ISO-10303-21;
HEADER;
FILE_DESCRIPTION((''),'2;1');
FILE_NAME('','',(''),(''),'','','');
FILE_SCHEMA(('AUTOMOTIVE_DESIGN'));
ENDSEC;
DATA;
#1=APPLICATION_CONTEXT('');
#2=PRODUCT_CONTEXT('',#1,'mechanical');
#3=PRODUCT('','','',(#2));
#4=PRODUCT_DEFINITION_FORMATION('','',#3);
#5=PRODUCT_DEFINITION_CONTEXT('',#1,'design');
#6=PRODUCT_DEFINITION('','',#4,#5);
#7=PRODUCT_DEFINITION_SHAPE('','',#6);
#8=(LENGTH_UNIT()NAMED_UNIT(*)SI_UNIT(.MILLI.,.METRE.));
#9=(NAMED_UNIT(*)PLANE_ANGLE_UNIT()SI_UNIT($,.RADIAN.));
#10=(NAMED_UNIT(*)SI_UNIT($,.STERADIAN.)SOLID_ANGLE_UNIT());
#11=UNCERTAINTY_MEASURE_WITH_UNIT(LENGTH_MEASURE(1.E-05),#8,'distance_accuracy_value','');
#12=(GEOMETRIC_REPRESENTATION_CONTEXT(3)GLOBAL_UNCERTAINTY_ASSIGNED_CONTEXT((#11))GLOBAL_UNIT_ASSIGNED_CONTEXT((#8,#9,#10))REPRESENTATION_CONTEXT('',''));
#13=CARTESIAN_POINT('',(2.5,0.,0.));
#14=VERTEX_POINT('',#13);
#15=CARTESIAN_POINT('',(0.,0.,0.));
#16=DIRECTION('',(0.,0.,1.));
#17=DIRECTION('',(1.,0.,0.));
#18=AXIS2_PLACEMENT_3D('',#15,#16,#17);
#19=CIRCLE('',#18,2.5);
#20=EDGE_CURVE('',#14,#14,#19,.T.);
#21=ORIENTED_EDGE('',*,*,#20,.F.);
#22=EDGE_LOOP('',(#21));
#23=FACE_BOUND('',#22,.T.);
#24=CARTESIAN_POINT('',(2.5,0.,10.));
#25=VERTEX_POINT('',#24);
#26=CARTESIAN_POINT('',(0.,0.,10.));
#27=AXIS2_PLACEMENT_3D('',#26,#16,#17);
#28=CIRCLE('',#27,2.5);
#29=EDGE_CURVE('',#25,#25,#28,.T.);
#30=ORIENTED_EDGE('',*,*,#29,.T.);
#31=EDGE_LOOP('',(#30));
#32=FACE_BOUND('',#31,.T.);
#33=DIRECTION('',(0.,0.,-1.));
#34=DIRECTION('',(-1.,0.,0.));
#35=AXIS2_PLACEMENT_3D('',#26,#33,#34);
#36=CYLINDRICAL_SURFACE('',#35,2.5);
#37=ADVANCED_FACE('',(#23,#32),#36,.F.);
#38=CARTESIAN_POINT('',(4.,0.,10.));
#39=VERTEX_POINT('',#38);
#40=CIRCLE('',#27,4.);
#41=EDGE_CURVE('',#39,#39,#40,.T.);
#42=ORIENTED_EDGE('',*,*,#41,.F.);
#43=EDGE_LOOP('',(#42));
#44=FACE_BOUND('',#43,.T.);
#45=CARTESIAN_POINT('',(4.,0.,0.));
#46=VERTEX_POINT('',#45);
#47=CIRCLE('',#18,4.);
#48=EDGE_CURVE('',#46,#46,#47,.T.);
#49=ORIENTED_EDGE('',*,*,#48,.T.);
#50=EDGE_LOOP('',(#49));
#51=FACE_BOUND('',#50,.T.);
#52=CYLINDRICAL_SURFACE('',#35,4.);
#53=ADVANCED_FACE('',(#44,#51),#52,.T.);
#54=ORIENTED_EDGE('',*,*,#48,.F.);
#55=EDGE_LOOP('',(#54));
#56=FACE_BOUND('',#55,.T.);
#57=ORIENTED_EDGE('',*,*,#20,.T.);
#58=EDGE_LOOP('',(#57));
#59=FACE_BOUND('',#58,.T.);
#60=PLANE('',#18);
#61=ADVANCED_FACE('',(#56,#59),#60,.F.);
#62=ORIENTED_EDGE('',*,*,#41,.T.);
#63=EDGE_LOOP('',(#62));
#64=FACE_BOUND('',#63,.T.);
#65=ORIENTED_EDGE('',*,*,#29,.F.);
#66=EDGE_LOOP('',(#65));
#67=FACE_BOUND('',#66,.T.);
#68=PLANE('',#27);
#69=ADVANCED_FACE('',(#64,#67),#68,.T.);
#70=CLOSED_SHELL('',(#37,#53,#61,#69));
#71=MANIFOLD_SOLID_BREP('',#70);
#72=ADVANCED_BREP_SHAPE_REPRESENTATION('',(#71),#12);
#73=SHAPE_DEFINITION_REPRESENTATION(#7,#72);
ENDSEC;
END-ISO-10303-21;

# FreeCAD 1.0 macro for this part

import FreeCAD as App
import Part
import Sketcher
from FreeCAD import Vector

doc = App.newDocument("Part")
params = doc.addObject("Spreadsheet::Sheet", "Params")
for row, (alias, value) in enumerate([
    ("sketch1_diameter", "8 mm"),
    ("sketch1_diameter2", "5 mm"),
    ("pad1_length", "10 mm"),
], start=1):
    params.set(f"A{row}", alias)
    params.set(f"B{row}", "=" + value)
    params.setAlias(f"B{row}", alias)

body = doc.addObject("PartDesign::Body", "Body")

sketch1 = body.newObject("Sketcher::SketchObject", "Sketch")
sketch1.AttachmentSupport = (doc.getObject("XY_Plane"), [""])
sketch1.MapMode = "FlatFace"
sketch1.addGeometry([
    Part.Circle(Vector(0, 0, 0), Vector(0, 0, 1), 4),
    Part.Circle(Vector(0, 0, 0), Vector(0, 0, 1), 2.5),
], False)
sketch1.addConstraint([
    Sketcher.Constraint("Coincident", 0, 3, -1, 1),
    Sketcher.Constraint("Coincident", 1, 3, -1, 1),
    Sketcher.Constraint("Diameter", 0, 8.0),
    Sketcher.Constraint("Diameter", 1, 5.0),
])
sketch1.setExpression("Constraints[2]", "Params.sketch1_diameter")
sketch1.setExpression("Constraints[3]", "Params.sketch1_diameter2")
pad1 = body.newObject("PartDesign::Pad", "Pad")
pad1.Profile = sketch1
pad1.setExpression("Length", "Params.pad1_length")

doc.recompute()
